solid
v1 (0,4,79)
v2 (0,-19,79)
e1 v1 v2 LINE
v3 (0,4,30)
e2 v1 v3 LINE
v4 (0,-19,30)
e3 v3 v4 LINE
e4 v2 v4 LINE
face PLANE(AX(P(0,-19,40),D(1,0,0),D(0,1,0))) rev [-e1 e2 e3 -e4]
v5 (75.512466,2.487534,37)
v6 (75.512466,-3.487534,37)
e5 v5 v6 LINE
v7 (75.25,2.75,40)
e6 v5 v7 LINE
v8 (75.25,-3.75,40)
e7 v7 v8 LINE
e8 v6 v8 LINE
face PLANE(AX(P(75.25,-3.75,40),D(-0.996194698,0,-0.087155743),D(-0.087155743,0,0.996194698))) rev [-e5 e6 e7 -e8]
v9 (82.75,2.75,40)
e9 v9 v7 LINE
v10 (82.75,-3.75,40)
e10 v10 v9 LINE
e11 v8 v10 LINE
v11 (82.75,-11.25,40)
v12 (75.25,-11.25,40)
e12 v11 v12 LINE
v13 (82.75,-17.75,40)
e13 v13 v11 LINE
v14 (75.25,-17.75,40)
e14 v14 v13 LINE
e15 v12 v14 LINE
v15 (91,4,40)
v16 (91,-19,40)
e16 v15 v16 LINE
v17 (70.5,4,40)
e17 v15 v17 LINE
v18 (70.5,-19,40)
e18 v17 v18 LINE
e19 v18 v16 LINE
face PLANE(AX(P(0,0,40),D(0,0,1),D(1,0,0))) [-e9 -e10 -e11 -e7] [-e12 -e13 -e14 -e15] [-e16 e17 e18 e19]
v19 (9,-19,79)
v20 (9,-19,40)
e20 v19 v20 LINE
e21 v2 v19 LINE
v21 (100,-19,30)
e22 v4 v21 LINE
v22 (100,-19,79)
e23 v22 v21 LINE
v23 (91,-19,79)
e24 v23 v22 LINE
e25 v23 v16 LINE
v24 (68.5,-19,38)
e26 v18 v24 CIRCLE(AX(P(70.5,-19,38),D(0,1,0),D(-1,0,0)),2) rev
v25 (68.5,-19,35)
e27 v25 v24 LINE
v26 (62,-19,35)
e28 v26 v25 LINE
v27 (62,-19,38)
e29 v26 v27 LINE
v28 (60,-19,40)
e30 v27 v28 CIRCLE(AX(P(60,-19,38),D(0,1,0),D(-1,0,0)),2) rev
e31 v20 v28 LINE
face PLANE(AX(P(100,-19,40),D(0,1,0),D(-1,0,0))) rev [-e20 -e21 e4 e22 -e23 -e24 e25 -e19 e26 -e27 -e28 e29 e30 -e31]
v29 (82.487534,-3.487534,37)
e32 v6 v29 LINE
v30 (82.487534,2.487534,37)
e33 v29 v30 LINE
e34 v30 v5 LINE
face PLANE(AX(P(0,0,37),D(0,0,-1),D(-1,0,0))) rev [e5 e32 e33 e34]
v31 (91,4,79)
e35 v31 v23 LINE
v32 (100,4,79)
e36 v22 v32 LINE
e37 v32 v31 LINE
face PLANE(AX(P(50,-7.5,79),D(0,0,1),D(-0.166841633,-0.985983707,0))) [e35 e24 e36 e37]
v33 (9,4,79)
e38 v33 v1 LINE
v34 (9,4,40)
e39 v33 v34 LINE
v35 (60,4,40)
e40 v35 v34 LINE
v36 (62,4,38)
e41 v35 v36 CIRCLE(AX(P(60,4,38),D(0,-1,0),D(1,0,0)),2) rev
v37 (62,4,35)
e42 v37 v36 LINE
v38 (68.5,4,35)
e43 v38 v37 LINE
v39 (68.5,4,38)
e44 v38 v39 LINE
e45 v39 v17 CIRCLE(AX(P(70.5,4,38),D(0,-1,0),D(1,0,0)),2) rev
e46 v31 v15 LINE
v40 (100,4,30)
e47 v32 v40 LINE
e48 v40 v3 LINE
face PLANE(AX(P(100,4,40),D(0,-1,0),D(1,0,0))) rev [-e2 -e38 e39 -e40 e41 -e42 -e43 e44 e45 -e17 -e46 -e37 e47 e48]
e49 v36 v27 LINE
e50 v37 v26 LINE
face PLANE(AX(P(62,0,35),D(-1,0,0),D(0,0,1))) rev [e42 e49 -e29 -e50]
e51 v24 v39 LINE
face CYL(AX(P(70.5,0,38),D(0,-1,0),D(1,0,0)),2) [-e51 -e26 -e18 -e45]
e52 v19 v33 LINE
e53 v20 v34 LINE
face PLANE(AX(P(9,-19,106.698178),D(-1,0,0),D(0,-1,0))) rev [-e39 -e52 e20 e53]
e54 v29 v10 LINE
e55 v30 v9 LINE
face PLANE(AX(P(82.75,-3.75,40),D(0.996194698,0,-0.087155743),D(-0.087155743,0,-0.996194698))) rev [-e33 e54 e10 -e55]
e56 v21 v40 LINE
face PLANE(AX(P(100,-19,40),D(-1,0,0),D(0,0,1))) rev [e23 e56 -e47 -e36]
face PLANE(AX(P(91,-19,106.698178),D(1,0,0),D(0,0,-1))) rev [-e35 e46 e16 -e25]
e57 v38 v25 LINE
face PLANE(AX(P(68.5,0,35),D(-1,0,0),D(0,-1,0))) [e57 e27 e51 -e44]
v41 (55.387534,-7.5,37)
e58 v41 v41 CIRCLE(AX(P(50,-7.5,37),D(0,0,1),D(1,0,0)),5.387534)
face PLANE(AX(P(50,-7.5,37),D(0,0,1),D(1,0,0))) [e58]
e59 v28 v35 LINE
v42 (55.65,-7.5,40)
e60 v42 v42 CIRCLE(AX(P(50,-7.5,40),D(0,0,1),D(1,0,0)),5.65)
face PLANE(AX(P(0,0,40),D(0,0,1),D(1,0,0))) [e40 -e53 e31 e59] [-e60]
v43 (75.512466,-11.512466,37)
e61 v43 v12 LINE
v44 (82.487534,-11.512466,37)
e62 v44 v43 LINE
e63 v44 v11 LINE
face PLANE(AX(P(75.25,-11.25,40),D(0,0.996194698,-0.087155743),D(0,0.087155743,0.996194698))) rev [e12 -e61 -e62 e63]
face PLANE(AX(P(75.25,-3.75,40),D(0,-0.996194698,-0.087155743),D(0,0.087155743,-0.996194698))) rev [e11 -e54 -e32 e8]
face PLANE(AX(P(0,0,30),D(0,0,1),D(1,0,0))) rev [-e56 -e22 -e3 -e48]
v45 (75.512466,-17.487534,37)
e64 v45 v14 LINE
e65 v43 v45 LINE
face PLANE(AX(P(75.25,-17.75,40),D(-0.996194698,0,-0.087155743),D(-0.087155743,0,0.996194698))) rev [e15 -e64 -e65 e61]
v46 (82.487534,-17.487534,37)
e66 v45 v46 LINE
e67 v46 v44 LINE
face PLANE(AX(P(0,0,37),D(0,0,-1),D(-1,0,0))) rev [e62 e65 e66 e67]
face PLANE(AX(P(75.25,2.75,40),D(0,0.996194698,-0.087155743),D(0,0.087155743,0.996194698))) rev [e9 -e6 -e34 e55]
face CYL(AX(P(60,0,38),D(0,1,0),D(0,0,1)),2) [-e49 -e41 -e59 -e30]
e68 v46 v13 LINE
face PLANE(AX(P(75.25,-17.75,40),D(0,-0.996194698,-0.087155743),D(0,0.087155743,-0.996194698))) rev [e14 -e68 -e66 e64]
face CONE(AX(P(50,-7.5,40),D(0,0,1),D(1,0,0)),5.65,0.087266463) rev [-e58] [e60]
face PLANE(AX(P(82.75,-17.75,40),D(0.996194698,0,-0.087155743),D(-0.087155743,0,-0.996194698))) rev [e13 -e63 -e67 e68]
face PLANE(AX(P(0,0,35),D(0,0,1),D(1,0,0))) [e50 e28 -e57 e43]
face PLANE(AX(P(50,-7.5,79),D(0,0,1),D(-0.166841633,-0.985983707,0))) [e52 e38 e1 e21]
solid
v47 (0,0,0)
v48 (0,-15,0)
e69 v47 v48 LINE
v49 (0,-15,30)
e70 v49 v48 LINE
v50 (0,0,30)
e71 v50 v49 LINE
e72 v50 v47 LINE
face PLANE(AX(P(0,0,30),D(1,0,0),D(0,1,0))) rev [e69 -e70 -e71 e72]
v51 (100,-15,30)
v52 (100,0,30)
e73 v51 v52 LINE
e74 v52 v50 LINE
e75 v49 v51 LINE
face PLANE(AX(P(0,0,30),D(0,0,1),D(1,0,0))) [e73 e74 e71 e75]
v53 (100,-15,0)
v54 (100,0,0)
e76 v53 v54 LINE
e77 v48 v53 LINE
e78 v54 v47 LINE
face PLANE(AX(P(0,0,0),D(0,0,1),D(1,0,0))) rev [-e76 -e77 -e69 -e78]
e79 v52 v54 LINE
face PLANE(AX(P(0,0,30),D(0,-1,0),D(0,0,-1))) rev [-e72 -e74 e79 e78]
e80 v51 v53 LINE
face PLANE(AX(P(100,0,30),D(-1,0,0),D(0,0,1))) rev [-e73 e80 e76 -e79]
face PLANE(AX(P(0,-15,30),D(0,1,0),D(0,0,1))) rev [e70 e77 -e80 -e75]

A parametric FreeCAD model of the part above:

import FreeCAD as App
import Part
import Sketcher
from FreeCAD import Vector


def edges_at(feature, points):
    """Names of the edges that pass closest to the given points."""
    edges = feature.Shape.Edges
    near = lambda p: min(range(len(edges)), key=lambda i: edges[i].distToShape(Part.Vertex(*p))[0])
    return sorted({f"Edge{near(p) + 1}" for p in points})


def faces_at(feature, points):
    """Names of the faces that lie closest to the given points."""
    faces = feature.Shape.Faces
    near = lambda p: min(range(len(faces)), key=lambda i: faces[i].distToShape(Part.Vertex(*p))[0])
    return sorted({f"Face{near(p) + 1}" for p in points})


def add_polygon(sketch, points):
    """Adds a closed chain of lines whose ends are joined by coincident constraints."""
    first, n = sketch.GeometryCount, len(points)
    for a, b in zip(points, points[1:] + points[:1]):
        sketch.addGeometry(Part.LineSegment(App.Vector(*a, 0), App.Vector(*b, 0)), False)
    for i in range(n):
        sketch.addConstraint(Sketcher.Constraint("Coincident", first + i, 2, first + (i + 1) % n, 1))

doc = App.newDocument("Part")
params = doc.addObject("Spreadsheet::Sheet", "Params")
for row, (alias, value) in enumerate([
    ("sketch1_width", "100 mm"),
    ("sketch1_height", "15 mm"),
    ("pad1_length", "30 mm"),
    ("sketch2_width", "100 mm"),
    ("sketch2_height", "23 mm"),
    ("pad2_length", "10 mm"),
    ("sketch3_height", "23 mm"),
    ("sketch3_width", "6.5 mm"),
    ("pocket1_length", "5 mm"),
    ("fillet_radius", "2 mm"),
    ("sketch4_width", "9 mm"),
    ("sketch4_height", "23 mm"),
    ("pad3_length", "39 mm"),
    ("sketch5_diameter", "11.3 mm"),
    ("pad4_length", "3 mm"),
    ("draft_angle", "5 deg"),
    ("sketch6_width", "7.5 mm"),
    ("sketch6_height", "6.5 mm"),
    ("pad5_length", "3 mm"),
    ("draft2_angle", "5 deg"),
    ("sketch7_width", "7.5 mm"),
    ("sketch7_height", "6.5 mm"),
    ("pad6_length", "3 mm"),
    ("draft3_angle", "5 deg"),
], start=1):
    params.set(f"A{row}", alias)
    params.set(f"B{row}", "=" + value)
    params.setAlias(f"B{row}", alias)

body = doc.addObject("PartDesign::Body", "Body")

# Sketch on XY plane
sketch1 = body.newObject("Sketcher::SketchObject", "Sketch")
sketch1.AttachmentSupport = (doc.getObject("XY_Plane"), [""])
sketch1.MapMode = "FlatFace"
add_polygon(sketch1, [(0, 0), (0, -15), (100, -15), (100, 0)])  # lines 0-3
sketch1.addConstraint([
    Sketcher.Constraint("Vertical", 0),
    Sketcher.Constraint("Horizontal", 1),
    Sketcher.Constraint("Vertical", 2),
    Sketcher.Constraint("Horizontal", 3),
    Sketcher.Constraint("Coincident", 3, 2, -1, 1),
    Sketcher.Constraint("DistanceX", 1, 1, 1, 2, 100.0),
    Sketcher.Constraint("DistanceY", 0, 2, 0, 1, 15.0),
])
sketch1.setExpression("Constraints[9]", "Params.sketch1_width")
sketch1.setExpression("Constraints[10]", "Params.sketch1_height")
pad1 = body.newObject("PartDesign::Pad", "Pad")
pad1.Profile = sketch1
pad1.setExpression("Length", "Params.pad1_length")
body2 = doc.addObject("PartDesign::Body", "Body001")

# Sketch on XY plane
sketch2 = body2.newObject("Sketcher::SketchObject", "Sketch001")
sketch2.AttachmentSupport = (doc.getObject("XY_Plane001"), [""])
sketch2.MapMode = "FlatFace"
sketch2.AttachmentOffset = App.Placement(Vector(0, 0, 30), App.Rotation())
add_polygon(sketch2, [(0, 4), (0, -19), (100, -19), (100, 4)])  # lines 0-3
sketch2.addConstraint([
    Sketcher.Constraint("Vertical", 0),
    Sketcher.Constraint("Horizontal", 1),
    Sketcher.Constraint("Vertical", 2),
    Sketcher.Constraint("Horizontal", 3),
    Sketcher.Constraint("PointOnObject", 0, 2, -2),
    Sketcher.Constraint("DistanceX", 1, 1, 1, 2, 100.0),
    Sketcher.Constraint("DistanceY", 0, 2, 0, 1, 23.0),
    Sketcher.Constraint("DistanceY", 0, 2, -1, 1, 19.0),
])
sketch2.setExpression("Constraints[9]", "Params.sketch2_width")
sketch2.setExpression("Constraints[10]", "Params.sketch2_height")
pad2 = body2.newObject("PartDesign::Pad", "Pad001")
pad2.Profile = sketch2
pad2.setExpression("Length", "Params.pad2_length")

# Sketch on XY plane
sketch3 = body2.newObject("Sketcher::SketchObject", "Sketch002")
sketch3.AttachmentSupport = (doc.getObject("XY_Plane001"), [""])
sketch3.MapMode = "FlatFace"
sketch3.AttachmentOffset = App.Placement(Vector(0, 0, 40), App.Rotation())
add_polygon(sketch3, [(62, 4), (62, -19), (68.5, -19), (68.5, 4)])  # lines 0-3
sketch3.addConstraint([
    Sketcher.Constraint("Vertical", 0),
    Sketcher.Constraint("Horizontal", 1),
    Sketcher.Constraint("Vertical", 2),
    Sketcher.Constraint("Horizontal", 3),
    Sketcher.Constraint("DistanceY", 0, 2, 0, 1, 23.0),
    Sketcher.Constraint("DistanceX", 1, 1, 1, 2, 6.5),
    Sketcher.Constraint("DistanceX", -1, 1, 0, 2, 62.0),
    Sketcher.Constraint("DistanceY", 0, 2, -1, 1, 19.0),
])
sketch3.setExpression("Constraints[8]", "Params.sketch3_height")
sketch3.setExpression("Constraints[9]", "Params.sketch3_width")
pocket1 = body2.newObject("PartDesign::Pocket", "Pocket")
pocket1.Profile = sketch3
pocket1.setExpression("Length", "Params.pocket1_length")
doc.recompute()

fillet = body2.newObject("PartDesign::Fillet", "Fillet")
fillet.Base = (pocket1, edges_at(pocket1, [(68.5, -7.5, 40), (62, -7.5, 40)]))
fillet.setExpression("Radius", "Params.fillet_radius")

# Sketch on XY plane
sketch4 = body2.newObject("Sketcher::SketchObject", "Sketch003")
sketch4.AttachmentSupport = (doc.getObject("XY_Plane001"), [""])
sketch4.MapMode = "FlatFace"
sketch4.AttachmentOffset = App.Placement(Vector(0, 0, 40), App.Rotation())
add_polygon(sketch4, [(91, 4), (91, -19), (100, -19), (100, 4)])  # lines 0-3
add_polygon(sketch4, [(0, 4), (0, -19), (9, -19), (9, 4)])  # lines 4-7
sketch4.addConstraint([
    Sketcher.Constraint("Vertical", 0),
    Sketcher.Constraint("Horizontal", 1),
    Sketcher.Constraint("Vertical", 2),
    Sketcher.Constraint("Horizontal", 3),
    Sketcher.Constraint("Vertical", 4),
    Sketcher.Constraint("Horizontal", 5),
    Sketcher.Constraint("Vertical", 6),
    Sketcher.Constraint("Horizontal", 7),
    Sketcher.Constraint("PointOnObject", 4, 2, -2),
    Sketcher.Constraint("Horizontal", 1, 2, 4, 2),
    Sketcher.Constraint("Horizontal", 3, 2, 6, 2),
    Sketcher.Constraint("Equal", 3, 5),
    Sketcher.Constraint("DistanceX", 1, 1, 1, 2, 9.0),
    Sketcher.Constraint("DistanceY", 0, 2, 0, 1, 23.0),
    Sketcher.Constraint("DistanceX", -1, 1, 0, 2, 91.0),
    Sketcher.Constraint("DistanceY", 0, 2, -1, 1, 19.0),
])
sketch4.setExpression("Constraints[20]", "Params.sketch4_width")
sketch4.setExpression("Constraints[21]", "Params.sketch4_height")
pad3 = body2.newObject("PartDesign::Pad", "Pad002")
pad3.Profile = sketch4
pad3.setExpression("Length", "Params.pad3_length")
body3 = doc.addObject("PartDesign::Body", "Body002")

# Sketch on XY plane
sketch5 = body3.newObject("Sketcher::SketchObject", "Sketch004")
sketch5.AttachmentSupport = (doc.getObject("XY_Plane002"), [""])
sketch5.MapMode = "FlatFace"
sketch5.AttachmentOffset = App.Placement(Vector(0, 0, 40), App.Rotation())
sketch5.addGeometry(Part.Circle(Vector(50, -7.5, 0), Vector(0, 0, 1), 5.65), False)
sketch5.addConstraint([
    Sketcher.Constraint("Diameter", 0, 11.3),
    Sketcher.Constraint("DistanceX", -1, 1, 0, 3, 50.0),
    Sketcher.Constraint("DistanceY", 0, 3, -1, 1, 7.5),
])
sketch5.setExpression("Constraints[0]", "Params.sketch5_diameter")
pad4 = body3.newObject("PartDesign::Pad", "Pad003")
pad4.Profile = sketch5
pad4.setExpression("Length", "Params.pad4_length")
pad4.Reversed = True
doc.recompute()

datumplane = body3.newObject("PartDesign::Plane", "DatumPlane")
datumplane.AttachmentSupport = (doc.getObject("XY_Plane002"), [""])
datumplane.MapMode = "FlatFace"
datumplane.AttachmentOffset = App.Placement(Vector(0, 0, 40), App.Rotation())
draft = body3.newObject("PartDesign::Draft", "Draft")
draft.Base = (pad4, faces_at(pad4, [(44.35, -7.5, 38.5)]))
draft.NeutralPlane = (datumplane, [""])
draft.setExpression("Angle", "Params.draft_angle")
draft.Reversed = True
doc.recompute()

boolean = body2.newObject("PartDesign::Boolean", "Boolean")
boolean.Type = "Cut"
boolean.addObjects([body3])
body4 = doc.addObject("PartDesign::Body", "Body003")

# Sketch on XY plane
sketch6 = body4.newObject("Sketcher::SketchObject", "Sketch005")
sketch6.AttachmentSupport = (doc.getObject("XY_Plane003"), [""])
sketch6.MapMode = "FlatFace"
sketch6.AttachmentOffset = App.Placement(Vector(0, 0, 40), App.Rotation())
add_polygon(sketch6, [(75.25, -11.25), (75.25, -17.75), (82.75, -17.75), (82.75, -11.25)])  # lines 0-3
sketch6.addConstraint([
    Sketcher.Constraint("Vertical", 0),
    Sketcher.Constraint("Horizontal", 1),
    Sketcher.Constraint("Vertical", 2),
    Sketcher.Constraint("Horizontal", 3),
    Sketcher.Constraint("DistanceX", 1, 1, 1, 2, 7.5),
    Sketcher.Constraint("DistanceY", 0, 2, 0, 1, 6.5),
    Sketcher.Constraint("DistanceX", -1, 1, 0, 2, 75.25),
    Sketcher.Constraint("DistanceY", 0, 2, -1, 1, 17.75),
])
sketch6.setExpression("Constraints[8]", "Params.sketch6_width")
sketch6.setExpression("Constraints[9]", "Params.sketch6_height")
pad5 = body4.newObject("PartDesign::Pad", "Pad004")
pad5.Profile = sketch6
pad5.setExpression("Length", "Params.pad5_length")
pad5.Reversed = True
doc.recompute()

datumplane2 = body4.newObject("PartDesign::Plane", "DatumPlane001")
datumplane2.AttachmentSupport = (doc.getObject("XY_Plane003"), [""])
datumplane2.MapMode = "FlatFace"
datumplane2.AttachmentOffset = App.Placement(Vector(0, 0, 40), App.Rotation())
draft2 = body4.newObject("PartDesign::Draft", "Draft001")
draft2.Base = (pad5, faces_at(pad5, [
    (79, -17.75, 38.5),
    (82.75, -14.5, 38.5),
    (79, -11.25, 38.5),
    (75.25, -14.5, 38.5),
]))
draft2.NeutralPlane = (datumplane2, [""])
draft2.setExpression("Angle", "Params.draft2_angle")
draft2.Reversed = True
doc.recompute()

boolean2 = body2.newObject("PartDesign::Boolean", "Boolean001")
boolean2.Type = "Cut"
boolean2.addObjects([body4])
body5 = doc.addObject("PartDesign::Body", "Body004")

# Sketch on XY plane
sketch7 = body5.newObject("Sketcher::SketchObject", "Sketch006")
sketch7.AttachmentSupport = (doc.getObject("XY_Plane004"), [""])
sketch7.MapMode = "FlatFace"
sketch7.AttachmentOffset = App.Placement(Vector(0, 0, 40), App.Rotation())
add_polygon(sketch7, [(75.25, 2.75), (75.25, -3.75), (82.75, -3.75), (82.75, 2.75)])  # lines 0-3
sketch7.addConstraint([
    Sketcher.Constraint("Vertical", 0),
    Sketcher.Constraint("Horizontal", 1),
    Sketcher.Constraint("Vertical", 2),
    Sketcher.Constraint("Horizontal", 3),
    Sketcher.Constraint("DistanceX", 1, 1, 1, 2, 7.5),
    Sketcher.Constraint("DistanceY", 0, 2, 0, 1, 6.5),
    Sketcher.Constraint("DistanceX", -1, 1, 0, 2, 75.25),
    Sketcher.Constraint("DistanceY", 0, 2, -1, 1, 3.75),
])
sketch7.setExpression("Constraints[8]", "Params.sketch7_width")
sketch7.setExpression("Constraints[9]", "Params.sketch7_height")
pad6 = body5.newObject("PartDesign::Pad", "Pad005")
pad6.Profile = sketch7
pad6.setExpression("Length", "Params.pad6_length")
pad6.Reversed = True
doc.recompute()

datumplane3 = body5.newObject("PartDesign::Plane", "DatumPlane002")
datumplane3.AttachmentSupport = (doc.getObject("XY_Plane004"), [""])
datumplane3.MapMode = "FlatFace"
datumplane3.AttachmentOffset = App.Placement(Vector(0, 0, 40), App.Rotation())
draft3 = body5.newObject("PartDesign::Draft", "Draft002")
draft3.Base = (pad6, faces_at(pad6, [
    (79, -3.75, 38.5),
    (82.75, -0.5, 38.5),
    (79, 2.75, 38.5),
    (75.25, -0.5, 38.5),
]))
draft3.NeutralPlane = (datumplane3, [""])
draft3.setExpression("Angle", "Params.draft3_angle")
draft3.Reversed = True
doc.recompute()

boolean3 = body2.newObject("PartDesign::Boolean", "Boolean002")
boolean3.Type = "Cut"
boolean3.addObjects([body5])

doc.recompute()
